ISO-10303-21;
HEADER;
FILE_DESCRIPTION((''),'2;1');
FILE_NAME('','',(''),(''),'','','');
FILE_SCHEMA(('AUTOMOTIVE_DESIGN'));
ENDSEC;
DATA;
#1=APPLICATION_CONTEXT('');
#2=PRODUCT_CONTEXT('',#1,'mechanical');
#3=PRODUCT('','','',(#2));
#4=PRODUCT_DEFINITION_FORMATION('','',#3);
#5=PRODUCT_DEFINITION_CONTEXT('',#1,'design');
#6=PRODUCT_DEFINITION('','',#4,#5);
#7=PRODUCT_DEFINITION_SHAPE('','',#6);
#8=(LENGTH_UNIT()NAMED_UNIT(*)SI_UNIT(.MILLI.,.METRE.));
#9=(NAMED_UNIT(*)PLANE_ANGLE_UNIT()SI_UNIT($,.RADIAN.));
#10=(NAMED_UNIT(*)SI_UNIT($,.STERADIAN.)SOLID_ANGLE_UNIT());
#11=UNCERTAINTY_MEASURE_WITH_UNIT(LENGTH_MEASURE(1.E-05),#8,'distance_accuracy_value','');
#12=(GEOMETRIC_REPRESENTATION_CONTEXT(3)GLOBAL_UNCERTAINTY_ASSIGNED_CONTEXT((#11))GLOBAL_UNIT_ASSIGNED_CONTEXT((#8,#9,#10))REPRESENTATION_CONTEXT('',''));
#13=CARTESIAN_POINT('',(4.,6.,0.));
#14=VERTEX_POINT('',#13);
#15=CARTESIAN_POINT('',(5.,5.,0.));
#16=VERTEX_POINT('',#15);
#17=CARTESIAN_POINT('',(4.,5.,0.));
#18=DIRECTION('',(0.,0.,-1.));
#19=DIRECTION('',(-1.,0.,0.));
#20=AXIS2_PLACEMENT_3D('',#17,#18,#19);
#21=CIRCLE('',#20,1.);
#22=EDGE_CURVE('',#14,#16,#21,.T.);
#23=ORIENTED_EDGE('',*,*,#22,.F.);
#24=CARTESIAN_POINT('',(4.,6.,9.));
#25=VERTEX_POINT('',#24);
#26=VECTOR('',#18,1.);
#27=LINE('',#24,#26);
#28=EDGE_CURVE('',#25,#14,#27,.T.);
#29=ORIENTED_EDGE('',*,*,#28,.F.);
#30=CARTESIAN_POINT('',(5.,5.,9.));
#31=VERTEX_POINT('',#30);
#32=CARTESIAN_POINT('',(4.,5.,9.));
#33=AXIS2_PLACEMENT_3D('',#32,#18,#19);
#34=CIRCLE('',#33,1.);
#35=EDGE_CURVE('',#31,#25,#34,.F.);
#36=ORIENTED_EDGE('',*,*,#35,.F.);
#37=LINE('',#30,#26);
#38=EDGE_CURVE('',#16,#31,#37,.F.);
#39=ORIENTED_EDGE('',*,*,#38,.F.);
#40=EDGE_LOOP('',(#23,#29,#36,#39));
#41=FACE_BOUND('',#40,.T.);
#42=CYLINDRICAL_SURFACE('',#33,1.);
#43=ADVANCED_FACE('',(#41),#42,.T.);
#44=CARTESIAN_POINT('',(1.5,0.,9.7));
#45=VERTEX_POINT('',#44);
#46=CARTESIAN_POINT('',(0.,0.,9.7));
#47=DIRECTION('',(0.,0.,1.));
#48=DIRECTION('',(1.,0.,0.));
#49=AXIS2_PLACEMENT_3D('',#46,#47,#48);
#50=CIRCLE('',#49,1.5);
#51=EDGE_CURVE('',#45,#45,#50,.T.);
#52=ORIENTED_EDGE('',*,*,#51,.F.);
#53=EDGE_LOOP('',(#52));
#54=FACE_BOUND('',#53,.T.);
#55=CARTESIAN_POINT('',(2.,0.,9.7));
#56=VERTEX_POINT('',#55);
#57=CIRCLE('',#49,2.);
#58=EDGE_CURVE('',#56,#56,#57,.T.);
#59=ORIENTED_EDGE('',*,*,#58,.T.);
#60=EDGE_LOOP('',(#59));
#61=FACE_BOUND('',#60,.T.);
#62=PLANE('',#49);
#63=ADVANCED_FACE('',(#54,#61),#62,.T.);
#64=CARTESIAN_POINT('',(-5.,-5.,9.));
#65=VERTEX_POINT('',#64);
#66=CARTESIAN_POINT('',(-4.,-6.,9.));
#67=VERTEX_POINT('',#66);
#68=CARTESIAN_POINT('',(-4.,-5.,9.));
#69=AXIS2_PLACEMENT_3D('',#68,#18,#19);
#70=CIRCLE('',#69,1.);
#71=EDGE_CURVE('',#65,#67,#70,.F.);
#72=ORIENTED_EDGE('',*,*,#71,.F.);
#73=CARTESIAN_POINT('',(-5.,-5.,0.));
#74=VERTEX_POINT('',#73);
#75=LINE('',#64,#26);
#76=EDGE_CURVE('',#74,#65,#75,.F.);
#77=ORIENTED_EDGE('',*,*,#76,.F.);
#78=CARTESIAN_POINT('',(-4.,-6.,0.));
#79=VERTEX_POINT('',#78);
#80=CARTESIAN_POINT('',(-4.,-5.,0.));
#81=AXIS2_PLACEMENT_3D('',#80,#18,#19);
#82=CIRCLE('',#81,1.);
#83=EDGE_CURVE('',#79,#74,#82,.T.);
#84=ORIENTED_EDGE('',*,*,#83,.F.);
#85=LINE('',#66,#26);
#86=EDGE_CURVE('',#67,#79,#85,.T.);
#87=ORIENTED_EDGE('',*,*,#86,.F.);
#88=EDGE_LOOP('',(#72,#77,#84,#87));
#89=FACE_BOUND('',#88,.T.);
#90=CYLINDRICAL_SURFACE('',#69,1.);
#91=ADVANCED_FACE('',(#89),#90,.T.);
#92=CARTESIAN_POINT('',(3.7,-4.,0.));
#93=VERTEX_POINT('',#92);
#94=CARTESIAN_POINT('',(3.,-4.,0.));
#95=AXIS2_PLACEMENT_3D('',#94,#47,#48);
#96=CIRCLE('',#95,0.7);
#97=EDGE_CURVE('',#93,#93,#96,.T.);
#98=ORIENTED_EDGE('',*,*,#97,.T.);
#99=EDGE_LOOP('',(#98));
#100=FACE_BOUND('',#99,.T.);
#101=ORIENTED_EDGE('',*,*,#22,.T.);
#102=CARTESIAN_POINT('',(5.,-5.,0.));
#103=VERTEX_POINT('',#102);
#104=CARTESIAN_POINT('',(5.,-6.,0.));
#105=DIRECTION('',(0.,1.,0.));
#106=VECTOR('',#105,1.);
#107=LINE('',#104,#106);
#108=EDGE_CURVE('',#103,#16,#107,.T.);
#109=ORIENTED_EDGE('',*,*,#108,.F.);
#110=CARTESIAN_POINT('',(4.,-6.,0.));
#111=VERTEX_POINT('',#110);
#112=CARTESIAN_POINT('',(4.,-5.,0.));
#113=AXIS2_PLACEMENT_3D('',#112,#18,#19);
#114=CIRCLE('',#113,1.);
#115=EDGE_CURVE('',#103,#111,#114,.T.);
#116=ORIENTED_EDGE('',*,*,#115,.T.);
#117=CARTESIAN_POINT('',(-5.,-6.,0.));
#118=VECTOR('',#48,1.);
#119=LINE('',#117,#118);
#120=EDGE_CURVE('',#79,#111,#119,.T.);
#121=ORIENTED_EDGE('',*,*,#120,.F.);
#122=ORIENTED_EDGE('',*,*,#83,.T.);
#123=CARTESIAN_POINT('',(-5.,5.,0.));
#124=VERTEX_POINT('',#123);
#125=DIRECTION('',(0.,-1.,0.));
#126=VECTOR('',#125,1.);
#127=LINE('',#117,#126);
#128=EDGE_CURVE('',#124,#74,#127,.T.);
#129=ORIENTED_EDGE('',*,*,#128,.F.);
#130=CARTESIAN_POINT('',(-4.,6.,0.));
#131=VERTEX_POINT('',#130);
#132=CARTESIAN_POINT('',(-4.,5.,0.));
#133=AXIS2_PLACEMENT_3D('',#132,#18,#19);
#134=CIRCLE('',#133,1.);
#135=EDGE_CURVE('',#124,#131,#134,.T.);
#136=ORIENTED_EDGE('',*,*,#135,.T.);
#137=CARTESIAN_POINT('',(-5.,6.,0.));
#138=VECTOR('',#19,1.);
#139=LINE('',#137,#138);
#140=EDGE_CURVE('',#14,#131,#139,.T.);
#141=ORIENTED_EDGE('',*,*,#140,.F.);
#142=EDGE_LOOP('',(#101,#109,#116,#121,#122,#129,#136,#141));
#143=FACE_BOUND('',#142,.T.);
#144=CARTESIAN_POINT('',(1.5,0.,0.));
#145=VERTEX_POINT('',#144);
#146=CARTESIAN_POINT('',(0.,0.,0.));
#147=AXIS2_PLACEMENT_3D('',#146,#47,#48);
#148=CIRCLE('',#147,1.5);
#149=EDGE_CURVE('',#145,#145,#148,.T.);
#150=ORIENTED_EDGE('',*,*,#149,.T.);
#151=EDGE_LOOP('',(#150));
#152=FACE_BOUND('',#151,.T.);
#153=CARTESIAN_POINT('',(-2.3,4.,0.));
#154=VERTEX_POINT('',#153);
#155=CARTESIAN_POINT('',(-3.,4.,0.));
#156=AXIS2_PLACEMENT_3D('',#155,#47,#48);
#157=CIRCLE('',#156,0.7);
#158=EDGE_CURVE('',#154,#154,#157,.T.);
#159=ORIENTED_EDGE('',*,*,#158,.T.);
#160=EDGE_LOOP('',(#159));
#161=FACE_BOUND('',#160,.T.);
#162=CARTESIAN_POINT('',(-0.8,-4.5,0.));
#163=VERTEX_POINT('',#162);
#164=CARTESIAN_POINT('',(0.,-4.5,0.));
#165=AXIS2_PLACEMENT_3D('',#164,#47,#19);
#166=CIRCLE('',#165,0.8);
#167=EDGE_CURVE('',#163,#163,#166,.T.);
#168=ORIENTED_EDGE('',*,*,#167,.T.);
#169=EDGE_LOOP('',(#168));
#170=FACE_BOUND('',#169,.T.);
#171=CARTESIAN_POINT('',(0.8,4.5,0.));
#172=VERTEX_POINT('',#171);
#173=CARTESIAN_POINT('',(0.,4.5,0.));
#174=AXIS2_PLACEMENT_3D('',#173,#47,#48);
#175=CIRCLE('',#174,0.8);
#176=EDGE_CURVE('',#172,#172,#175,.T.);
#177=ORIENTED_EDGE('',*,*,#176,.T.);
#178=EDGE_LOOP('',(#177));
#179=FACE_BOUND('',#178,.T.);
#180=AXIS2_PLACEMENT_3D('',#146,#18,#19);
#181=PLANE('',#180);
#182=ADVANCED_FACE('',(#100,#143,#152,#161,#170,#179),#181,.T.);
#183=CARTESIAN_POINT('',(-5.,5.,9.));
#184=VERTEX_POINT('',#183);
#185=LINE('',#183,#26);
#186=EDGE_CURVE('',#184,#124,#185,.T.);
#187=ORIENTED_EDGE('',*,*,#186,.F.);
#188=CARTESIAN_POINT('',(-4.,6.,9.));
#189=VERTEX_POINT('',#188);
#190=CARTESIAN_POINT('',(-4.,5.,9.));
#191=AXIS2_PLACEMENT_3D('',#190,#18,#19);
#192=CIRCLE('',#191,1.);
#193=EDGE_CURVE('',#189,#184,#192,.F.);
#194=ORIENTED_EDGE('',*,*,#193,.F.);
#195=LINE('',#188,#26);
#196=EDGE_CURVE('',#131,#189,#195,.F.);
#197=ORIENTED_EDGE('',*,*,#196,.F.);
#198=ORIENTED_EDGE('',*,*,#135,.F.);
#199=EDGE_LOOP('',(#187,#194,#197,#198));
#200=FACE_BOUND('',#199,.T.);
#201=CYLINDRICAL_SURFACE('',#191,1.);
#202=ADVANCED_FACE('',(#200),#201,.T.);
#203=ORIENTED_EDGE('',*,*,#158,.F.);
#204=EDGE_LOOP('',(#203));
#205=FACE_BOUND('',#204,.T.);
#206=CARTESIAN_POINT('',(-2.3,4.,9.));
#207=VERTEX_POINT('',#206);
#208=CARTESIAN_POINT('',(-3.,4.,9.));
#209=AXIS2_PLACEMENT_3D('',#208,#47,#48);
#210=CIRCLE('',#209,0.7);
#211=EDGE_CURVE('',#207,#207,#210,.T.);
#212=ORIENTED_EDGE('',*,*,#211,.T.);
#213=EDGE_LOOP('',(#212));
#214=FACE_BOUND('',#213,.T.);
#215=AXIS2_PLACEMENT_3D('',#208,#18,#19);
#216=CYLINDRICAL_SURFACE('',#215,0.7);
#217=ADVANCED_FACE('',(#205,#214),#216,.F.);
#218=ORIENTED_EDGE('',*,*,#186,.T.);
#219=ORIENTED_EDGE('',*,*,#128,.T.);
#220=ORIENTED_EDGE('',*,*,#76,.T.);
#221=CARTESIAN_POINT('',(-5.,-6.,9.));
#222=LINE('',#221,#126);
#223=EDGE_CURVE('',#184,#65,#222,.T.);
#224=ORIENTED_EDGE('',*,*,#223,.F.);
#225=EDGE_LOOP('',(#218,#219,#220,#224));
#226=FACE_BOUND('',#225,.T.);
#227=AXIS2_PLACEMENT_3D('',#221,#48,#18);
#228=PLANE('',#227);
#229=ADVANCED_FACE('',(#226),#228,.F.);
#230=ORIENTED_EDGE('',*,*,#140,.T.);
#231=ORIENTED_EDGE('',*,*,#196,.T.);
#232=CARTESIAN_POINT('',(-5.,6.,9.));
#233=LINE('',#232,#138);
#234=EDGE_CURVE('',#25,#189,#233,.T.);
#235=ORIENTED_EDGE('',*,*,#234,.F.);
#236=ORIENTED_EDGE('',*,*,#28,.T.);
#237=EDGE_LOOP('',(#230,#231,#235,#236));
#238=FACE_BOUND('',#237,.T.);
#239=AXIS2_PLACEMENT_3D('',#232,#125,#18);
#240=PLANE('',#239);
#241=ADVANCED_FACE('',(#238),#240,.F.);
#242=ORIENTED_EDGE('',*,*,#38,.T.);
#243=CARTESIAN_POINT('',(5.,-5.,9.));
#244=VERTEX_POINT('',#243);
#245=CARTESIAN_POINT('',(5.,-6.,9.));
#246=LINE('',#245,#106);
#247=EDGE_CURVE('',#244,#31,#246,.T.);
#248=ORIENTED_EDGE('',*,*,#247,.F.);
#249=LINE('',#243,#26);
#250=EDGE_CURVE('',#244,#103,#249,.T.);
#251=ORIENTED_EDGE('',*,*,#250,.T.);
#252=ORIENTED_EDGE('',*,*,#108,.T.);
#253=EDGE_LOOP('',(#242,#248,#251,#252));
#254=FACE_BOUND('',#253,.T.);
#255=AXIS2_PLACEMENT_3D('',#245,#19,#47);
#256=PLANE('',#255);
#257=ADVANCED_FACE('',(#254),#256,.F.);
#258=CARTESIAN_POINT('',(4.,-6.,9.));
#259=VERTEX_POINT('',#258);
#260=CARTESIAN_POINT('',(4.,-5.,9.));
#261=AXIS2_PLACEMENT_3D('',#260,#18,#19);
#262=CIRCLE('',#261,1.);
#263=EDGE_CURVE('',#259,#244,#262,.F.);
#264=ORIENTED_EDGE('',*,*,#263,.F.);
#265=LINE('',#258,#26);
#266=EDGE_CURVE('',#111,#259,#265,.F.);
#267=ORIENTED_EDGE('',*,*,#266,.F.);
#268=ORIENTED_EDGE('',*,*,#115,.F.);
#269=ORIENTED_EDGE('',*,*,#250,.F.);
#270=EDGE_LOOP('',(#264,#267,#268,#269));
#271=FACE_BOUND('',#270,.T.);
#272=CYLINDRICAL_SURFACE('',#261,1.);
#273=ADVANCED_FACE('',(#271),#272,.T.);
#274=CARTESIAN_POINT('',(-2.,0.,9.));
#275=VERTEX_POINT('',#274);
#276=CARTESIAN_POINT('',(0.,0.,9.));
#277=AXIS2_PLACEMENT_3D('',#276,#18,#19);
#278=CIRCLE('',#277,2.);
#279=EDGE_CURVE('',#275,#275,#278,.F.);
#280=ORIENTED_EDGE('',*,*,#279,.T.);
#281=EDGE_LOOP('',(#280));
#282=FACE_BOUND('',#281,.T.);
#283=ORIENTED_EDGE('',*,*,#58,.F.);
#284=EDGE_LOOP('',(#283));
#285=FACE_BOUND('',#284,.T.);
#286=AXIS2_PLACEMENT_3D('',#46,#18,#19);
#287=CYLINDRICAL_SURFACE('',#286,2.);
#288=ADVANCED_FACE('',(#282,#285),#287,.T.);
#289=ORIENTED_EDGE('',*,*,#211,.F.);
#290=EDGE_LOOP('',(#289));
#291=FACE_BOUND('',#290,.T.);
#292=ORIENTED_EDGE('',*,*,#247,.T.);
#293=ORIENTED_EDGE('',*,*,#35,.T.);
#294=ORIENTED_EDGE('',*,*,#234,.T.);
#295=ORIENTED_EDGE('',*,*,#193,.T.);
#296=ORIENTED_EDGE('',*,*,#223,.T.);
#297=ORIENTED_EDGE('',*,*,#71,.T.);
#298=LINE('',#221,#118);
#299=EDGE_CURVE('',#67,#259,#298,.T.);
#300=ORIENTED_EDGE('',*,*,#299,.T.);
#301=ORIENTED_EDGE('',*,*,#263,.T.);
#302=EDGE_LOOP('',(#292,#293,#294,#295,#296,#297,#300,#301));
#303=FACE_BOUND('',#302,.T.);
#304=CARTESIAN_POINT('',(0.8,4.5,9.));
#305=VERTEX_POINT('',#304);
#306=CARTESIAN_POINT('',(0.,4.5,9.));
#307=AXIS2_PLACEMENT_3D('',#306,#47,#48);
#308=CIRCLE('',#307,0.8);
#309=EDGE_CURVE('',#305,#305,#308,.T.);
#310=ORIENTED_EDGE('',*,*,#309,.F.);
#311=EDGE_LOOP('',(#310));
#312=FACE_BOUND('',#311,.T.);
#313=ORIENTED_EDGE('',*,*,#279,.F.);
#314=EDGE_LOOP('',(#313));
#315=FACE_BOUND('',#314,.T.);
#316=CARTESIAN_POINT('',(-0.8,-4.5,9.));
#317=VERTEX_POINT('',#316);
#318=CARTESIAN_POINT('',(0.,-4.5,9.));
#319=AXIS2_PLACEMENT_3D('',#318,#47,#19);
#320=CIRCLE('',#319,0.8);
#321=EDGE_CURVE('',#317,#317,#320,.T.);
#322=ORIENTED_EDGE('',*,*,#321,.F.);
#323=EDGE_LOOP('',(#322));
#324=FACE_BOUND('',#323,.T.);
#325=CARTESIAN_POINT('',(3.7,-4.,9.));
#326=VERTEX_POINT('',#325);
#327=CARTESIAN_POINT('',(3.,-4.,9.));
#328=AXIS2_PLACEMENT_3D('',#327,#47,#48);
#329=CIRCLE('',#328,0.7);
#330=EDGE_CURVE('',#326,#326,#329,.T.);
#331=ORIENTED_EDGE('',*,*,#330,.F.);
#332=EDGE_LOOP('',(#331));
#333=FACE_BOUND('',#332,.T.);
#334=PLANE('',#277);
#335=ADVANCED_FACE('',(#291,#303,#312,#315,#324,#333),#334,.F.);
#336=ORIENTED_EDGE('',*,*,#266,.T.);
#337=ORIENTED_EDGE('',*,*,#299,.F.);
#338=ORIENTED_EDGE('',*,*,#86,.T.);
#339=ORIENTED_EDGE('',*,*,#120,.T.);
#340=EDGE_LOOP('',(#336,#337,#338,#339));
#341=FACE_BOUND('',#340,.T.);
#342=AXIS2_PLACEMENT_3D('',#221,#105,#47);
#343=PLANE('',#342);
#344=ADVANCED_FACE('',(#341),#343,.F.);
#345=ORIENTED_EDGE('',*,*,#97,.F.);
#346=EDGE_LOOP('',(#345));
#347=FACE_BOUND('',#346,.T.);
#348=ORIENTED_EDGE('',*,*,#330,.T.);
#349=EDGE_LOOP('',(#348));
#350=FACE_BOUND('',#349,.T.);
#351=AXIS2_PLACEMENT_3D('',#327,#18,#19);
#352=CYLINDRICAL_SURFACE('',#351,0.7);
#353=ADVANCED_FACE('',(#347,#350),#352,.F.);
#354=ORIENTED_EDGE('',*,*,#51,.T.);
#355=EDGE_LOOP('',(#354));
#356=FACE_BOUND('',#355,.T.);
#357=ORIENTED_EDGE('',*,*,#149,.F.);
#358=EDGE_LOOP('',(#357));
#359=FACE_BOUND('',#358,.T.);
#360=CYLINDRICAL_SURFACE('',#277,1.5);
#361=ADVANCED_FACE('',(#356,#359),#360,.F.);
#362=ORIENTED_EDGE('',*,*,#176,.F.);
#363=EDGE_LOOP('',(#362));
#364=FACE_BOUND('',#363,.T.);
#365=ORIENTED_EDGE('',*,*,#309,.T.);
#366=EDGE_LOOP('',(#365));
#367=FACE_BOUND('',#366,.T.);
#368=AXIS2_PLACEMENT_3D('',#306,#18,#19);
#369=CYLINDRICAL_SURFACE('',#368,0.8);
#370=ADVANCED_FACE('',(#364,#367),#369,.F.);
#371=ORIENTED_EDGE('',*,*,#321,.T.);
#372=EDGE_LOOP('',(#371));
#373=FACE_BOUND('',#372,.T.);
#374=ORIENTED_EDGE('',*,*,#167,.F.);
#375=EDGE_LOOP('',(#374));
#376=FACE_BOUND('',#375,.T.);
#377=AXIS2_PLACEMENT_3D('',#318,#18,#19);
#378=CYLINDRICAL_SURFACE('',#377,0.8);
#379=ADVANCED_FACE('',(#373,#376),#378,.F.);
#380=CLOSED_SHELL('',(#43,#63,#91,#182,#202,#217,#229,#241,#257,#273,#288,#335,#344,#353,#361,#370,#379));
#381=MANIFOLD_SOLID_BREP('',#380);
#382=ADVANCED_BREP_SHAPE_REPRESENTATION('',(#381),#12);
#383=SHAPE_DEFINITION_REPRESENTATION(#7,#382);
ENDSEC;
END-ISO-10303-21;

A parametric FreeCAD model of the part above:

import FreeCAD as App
import Part
import Sketcher

V = App.Vector


def edges_at(feature, points):
    """Names of the edges that pass closest to the given points."""
    edges = feature.Shape.Edges
    near = lambda p: min(range(len(edges)), key=lambda i: edges[i].distToShape(Part.Vertex(*p))[0])
    return sorted({f"Edge{near(p) + 1}" for p in points})


def add_polygon(sketch, points):
    """Adds a closed chain of lines whose ends are joined by coincident constraints."""
    first, n = sketch.GeometryCount, len(points)
    for a, b in zip(points, points[1:] + points[:1]):
        sketch.addGeometry(Part.LineSegment(App.Vector(*a, 0), App.Vector(*b, 0)), False)
    for i in range(n):
        sketch.addConstraint(Sketcher.Constraint("Coincident", first + i, 2, first + (i + 1) % n, 1))

doc = App.newDocument("Part")
body = doc.addObject("PartDesign::Body", "Body")

sketch1 = body.newObject("Sketcher::SketchObject", "Sketch")
sketch1.AttachmentSupport = (doc.getObject("XY_Plane"), [""])
sketch1.MapMode = "FlatFace"
add_polygon(sketch1, [(-5, 6), (-5, -6), (5, -6), (5, 6)])
sketch1.addGeometry(Part.Circle(V(0, -4.5, 0), V(0, 0, 1), 0.8), False)
sketch1.addGeometry(Part.Circle(V(3, -4, 0), V(0, 0, 1), 0.7), False)
sketch1.addGeometry(Part.Circle(V(0, 0, 0), V(0, 0, 1), 1.5), False)
sketch1.addGeometry(Part.Circle(V(-3, 4, 0), V(0, 0, 1), 0.7), False)
sketch1.addGeometry(Part.Circle(V(0, 4.5, 0), V(0, 0, 1), 0.8), False)
sketch1.addConstraint(Sketcher.Constraint("Vertical", 0))
sketch1.addConstraint(Sketcher.Constraint("Horizontal", 1))
sketch1.addConstraint(Sketcher.Constraint("Vertical", 2))
sketch1.addConstraint(Sketcher.Constraint("Horizontal", 3))
sketch1.addConstraint(Sketcher.Constraint("Coincident", 6, 3, -1, 1))
sketch1.addConstraint(Sketcher.Constraint("Equal", 5, 7))
sketch1.addConstraint(Sketcher.Constraint("Equal", 4, 8))
sketch1.addConstraint(Sketcher.Constraint("Symmetric", 5, 3, 7, 3, -1, 1))
sketch1.addConstraint(Sketcher.Constraint("Symmetric", 4, 3, 8, 3, -1, 1))
sketch1.addConstraint(Sketcher.Constraint("Symmetric", 0, 2, 2, 2, -1, 1))
sketch1.addConstraint(Sketcher.Constraint("PointOnObject", 4, 3, -2))
sketch1.addConstraint(Sketcher.Constraint("Diameter", 6, 3.0))
sketch1.addConstraint(Sketcher.Constraint("Diameter", 4, 1.6))
sketch1.addConstraint(Sketcher.Constraint("Diameter", 5, 1.4))
sketch1.addConstraint(Sketcher.Constraint("DistanceX", 1, 1, 1, 2, 10.0))
sketch1.addConstraint(Sketcher.Constraint("DistanceY", 0, 2, 0, 1, 12.0))
sketch1.addConstraint(Sketcher.Constraint("DistanceX", -1, 1, 5, 3, 3.0))
sketch1.addConstraint(Sketcher.Constraint("DistanceY", 5, 3, -1, 1, 4.0))
sketch1.addConstraint(Sketcher.Constraint("DistanceY", 4, 3, 8, 3, 9.0))
pad1 = body.newObject("PartDesign::Pad", "Pad")
pad1.Profile = sketch1
pad1.Length = 9

sketch2 = body.newObject("Sketcher::SketchObject", "Sketch001")
sketch2.AttachmentSupport = (doc.getObject("XY_Plane"), [""])
sketch2.MapMode = "FlatFace"
sketch2.AttachmentOffset = App.Placement(V(0, 0, 9), App.Rotation())
sketch2.addGeometry(Part.Circle(V(0, 0, 0), V(0, 0, 1), 2), False)
sketch2.addGeometry(Part.Circle(V(0, 0, 0), V(0, 0, 1), 1.5), False)
sketch2.addConstraint(Sketcher.Constraint("Coincident", 0, 3, -1, 1))
sketch2.addConstraint(Sketcher.Constraint("Coincident", 1, 3, -1, 1))
sketch2.addConstraint(Sketcher.Constraint("Diameter", 0, 4.0))
sketch2.addConstraint(Sketcher.Constraint("Diameter", 1, 3.0))
pad2 = body.newObject("PartDesign::Pad", "Pad001")
pad2.Profile = sketch2
pad2.Length = 0.7
doc.recompute()

fillet = body.newObject("PartDesign::Fillet", "Fillet")
fillet.Base = (pad2, edges_at(pad2, [
    (5, -6, 4.5),
    (-5, -6, 4.5),
    (-5, 6, 4.5),
    (5, 6, 4.5),
]))
fillet.Radius = 1

doc.recompute()
